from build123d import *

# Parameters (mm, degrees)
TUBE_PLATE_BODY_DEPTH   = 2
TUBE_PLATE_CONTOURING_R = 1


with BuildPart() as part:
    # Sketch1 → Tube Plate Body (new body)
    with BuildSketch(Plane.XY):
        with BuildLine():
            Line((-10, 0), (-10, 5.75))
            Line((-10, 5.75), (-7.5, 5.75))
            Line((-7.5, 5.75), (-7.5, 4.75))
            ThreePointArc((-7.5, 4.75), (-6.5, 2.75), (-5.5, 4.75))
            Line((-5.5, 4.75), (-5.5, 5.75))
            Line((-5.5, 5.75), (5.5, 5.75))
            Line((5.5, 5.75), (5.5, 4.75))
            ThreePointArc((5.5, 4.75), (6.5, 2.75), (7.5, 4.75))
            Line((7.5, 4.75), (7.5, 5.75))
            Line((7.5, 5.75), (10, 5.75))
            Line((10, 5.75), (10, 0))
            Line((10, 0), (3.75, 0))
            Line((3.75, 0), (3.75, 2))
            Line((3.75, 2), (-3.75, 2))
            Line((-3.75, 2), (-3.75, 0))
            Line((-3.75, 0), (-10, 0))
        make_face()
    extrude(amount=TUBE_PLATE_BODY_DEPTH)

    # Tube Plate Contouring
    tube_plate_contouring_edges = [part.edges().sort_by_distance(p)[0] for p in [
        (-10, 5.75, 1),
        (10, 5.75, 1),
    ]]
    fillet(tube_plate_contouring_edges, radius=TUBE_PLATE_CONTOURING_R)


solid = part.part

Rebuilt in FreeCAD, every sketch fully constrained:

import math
import FreeCAD as App
import Part
import Sketcher
Q = App.Units.Quantity


def edges_at(feature, points):
    """Names of the edges that pass closest to the given points."""
    edges = feature.Shape.Edges
    near = lambda p: min(range(len(edges)), key=lambda i: edges[i].distToShape(Part.Vertex(*p))[0])
    return sorted({f"Edge{near(p) + 1}" for p in points})

doc = App.newDocument("Part")
body = doc.addObject("PartDesign::Body", "Body")

# Sketch on XY plane
sketch1 = body.newObject("Sketcher::SketchObject", "Sketch")
sketch1.AttachmentSupport = (doc.getObject("XY_Plane"), [""])
sketch1.MapMode = "FlatFace"
sketch1.addGeometry([
    Part.LineSegment(App.Vector(-10, 5.8, 0), App.Vector(-10, 0, 0)),  # 0
    Part.LineSegment(App.Vector(-10, 0, 0), App.Vector(-3.8, 0, 0)),  # 1
    Part.LineSegment(App.Vector(-3.8, 0, 0), App.Vector(-3.8, 2, 0)),  # 2
    Part.LineSegment(App.Vector(-3.8, 2, 0), App.Vector(3.8, 2, 0)),  # 3
    Part.LineSegment(App.Vector(3.8, 2, 0), App.Vector(3.8, 0, 0)),  # 4
    Part.LineSegment(App.Vector(3.8, 0, 0), App.Vector(10, 0, 0)),  # 5
    Part.LineSegment(App.Vector(10, 0, 0), App.Vector(10, 5.8, 0)),  # 6
    Part.LineSegment(App.Vector(10, 5.8, 0), App.Vector(7.5, 5.8, 0)),  # 7
    Part.LineSegment(App.Vector(7.5, 5.8, 0), App.Vector(7.5, 4.8, 0)),  # 8
    Part.ArcOfCircle(Part.Circle(App.Vector(6.5, 4, 0), App.Vector(0, 0, 1), 1.2), math.radians(143), math.radians(397)),  # 9
    Part.LineSegment(App.Vector(5.5, 4.8, 0), App.Vector(5.5, 5.8, 0)),  # 10
    Part.LineSegment(App.Vector(5.5, 5.8, 0), App.Vector(-5.5, 5.8, 0)),  # 11
    Part.LineSegment(App.Vector(-5.5, 5.8, 0), App.Vector(-5.5, 4.8, 0)),  # 12
    Part.ArcOfCircle(Part.Circle(App.Vector(-6.5, 4, 0), App.Vector(0, 0, 1), 1.2), math.radians(143), math.radians(397)),  # 13
    Part.LineSegment(App.Vector(-7.5, 4.8, 0), App.Vector(-7.5, 5.8, 0)),  # 14
    Part.LineSegment(App.Vector(-7.5, 5.8, 0), App.Vector(-10, 5.8, 0)),  # 15
], False)
sketch1.addConstraint([
    Sketcher.Constraint("Coincident", 0, 2, 1, 1),
    Sketcher.Constraint("Coincident", 1, 2, 2, 1),
    Sketcher.Constraint("Coincident", 2, 2, 3, 1),
    Sketcher.Constraint("Coincident", 3, 2, 4, 1),
    Sketcher.Constraint("Coincident", 4, 2, 5, 1),
    Sketcher.Constraint("Coincident", 5, 2, 6, 1),
    Sketcher.Constraint("Coincident", 6, 2, 7, 1),
    Sketcher.Constraint("Coincident", 7, 2, 8, 1),
    Sketcher.Constraint("Coincident", 8, 2, 9, 2),
    Sketcher.Constraint("Coincident", 9, 1, 10, 1),
    Sketcher.Constraint("Coincident", 10, 2, 11, 1),
    Sketcher.Constraint("Coincident", 11, 2, 12, 1),
    Sketcher.Constraint("Coincident", 12, 2, 13, 2),
    Sketcher.Constraint("Coincident", 13, 1, 14, 1),
    Sketcher.Constraint("Coincident", 14, 2, 15, 1),
    Sketcher.Constraint("Coincident", 15, 2, 0, 1),
    Sketcher.Constraint("Vertical", 0),
    Sketcher.Constraint("Horizontal", 1),
    Sketcher.Constraint("Vertical", 2),
    Sketcher.Constraint("Horizontal", 3),
    Sketcher.Constraint("Vertical", 4),
    Sketcher.Constraint("Horizontal", 5),
    Sketcher.Constraint("Vertical", 6),
    Sketcher.Constraint("Horizontal", 7),
    Sketcher.Constraint("Vertical", 8),
    Sketcher.Constraint("Vertical", 10),
    Sketcher.Constraint("Horizontal", 11),
    Sketcher.Constraint("Vertical", 12),
    Sketcher.Constraint("Vertical", 14),
    Sketcher.Constraint("Horizontal", 15),
    Sketcher.Constraint("Equal", 9, 13),
    Sketcher.Constraint("Symmetric", 1, 2, 4, 2, -1, 1),
    Sketcher.Constraint("Symmetric", 9, 3, 13, 3, -2),
    Sketcher.Constraint("Symmetric", 0, 2, 5, 2, -2),
    Sketcher.Constraint("Symmetric", 7, 2, 14, 2, -2),
    Sketcher.Constraint("Horizontal", 8, 2, 9, 1),
    Sketcher.Constraint("Horizontal", 7, 2, 10, 2),
    Sketcher.Constraint("Horizontal", 9, 1, 12, 2),
    Sketcher.Constraint("DistanceX", 11, 2, 11, 1, Q("11 mm")),
    Sketcher.Constraint("DistanceY", 2, 1, 2, 2, Q("2 mm")),
    Sketcher.Constraint("DistanceY", 8, 2, 8, 1, Q("1 mm")),
    Sketcher.Constraint("Radius", 9, Q("1.25 mm")),
    Sketcher.Constraint("DistanceX", 3, 1, 3, 2, Q("7.5 mm")),
    Sketcher.Constraint("DistanceX", 7, 2, 7, 1, Q("2.5 mm")),
    Sketcher.Constraint("DistanceY", -1, 1, 9, 3, Q("4 mm")),
    Sketcher.Constraint("DistanceX", 0, 2, -1, 1, Q("10 mm")),
])
pad1 = body.newObject("PartDesign::Pad", "Pad")
pad1.Profile = sketch1
pad1.Length = 2
doc.recompute()

fillet = body.newObject("PartDesign::Fillet", "Fillet")
fillet.Base = (pad1, edges_at(pad1, [(-10, 5.75, 1), (10, 5.75, 1)]))
fillet.Radius = 1

doc.recompute()
